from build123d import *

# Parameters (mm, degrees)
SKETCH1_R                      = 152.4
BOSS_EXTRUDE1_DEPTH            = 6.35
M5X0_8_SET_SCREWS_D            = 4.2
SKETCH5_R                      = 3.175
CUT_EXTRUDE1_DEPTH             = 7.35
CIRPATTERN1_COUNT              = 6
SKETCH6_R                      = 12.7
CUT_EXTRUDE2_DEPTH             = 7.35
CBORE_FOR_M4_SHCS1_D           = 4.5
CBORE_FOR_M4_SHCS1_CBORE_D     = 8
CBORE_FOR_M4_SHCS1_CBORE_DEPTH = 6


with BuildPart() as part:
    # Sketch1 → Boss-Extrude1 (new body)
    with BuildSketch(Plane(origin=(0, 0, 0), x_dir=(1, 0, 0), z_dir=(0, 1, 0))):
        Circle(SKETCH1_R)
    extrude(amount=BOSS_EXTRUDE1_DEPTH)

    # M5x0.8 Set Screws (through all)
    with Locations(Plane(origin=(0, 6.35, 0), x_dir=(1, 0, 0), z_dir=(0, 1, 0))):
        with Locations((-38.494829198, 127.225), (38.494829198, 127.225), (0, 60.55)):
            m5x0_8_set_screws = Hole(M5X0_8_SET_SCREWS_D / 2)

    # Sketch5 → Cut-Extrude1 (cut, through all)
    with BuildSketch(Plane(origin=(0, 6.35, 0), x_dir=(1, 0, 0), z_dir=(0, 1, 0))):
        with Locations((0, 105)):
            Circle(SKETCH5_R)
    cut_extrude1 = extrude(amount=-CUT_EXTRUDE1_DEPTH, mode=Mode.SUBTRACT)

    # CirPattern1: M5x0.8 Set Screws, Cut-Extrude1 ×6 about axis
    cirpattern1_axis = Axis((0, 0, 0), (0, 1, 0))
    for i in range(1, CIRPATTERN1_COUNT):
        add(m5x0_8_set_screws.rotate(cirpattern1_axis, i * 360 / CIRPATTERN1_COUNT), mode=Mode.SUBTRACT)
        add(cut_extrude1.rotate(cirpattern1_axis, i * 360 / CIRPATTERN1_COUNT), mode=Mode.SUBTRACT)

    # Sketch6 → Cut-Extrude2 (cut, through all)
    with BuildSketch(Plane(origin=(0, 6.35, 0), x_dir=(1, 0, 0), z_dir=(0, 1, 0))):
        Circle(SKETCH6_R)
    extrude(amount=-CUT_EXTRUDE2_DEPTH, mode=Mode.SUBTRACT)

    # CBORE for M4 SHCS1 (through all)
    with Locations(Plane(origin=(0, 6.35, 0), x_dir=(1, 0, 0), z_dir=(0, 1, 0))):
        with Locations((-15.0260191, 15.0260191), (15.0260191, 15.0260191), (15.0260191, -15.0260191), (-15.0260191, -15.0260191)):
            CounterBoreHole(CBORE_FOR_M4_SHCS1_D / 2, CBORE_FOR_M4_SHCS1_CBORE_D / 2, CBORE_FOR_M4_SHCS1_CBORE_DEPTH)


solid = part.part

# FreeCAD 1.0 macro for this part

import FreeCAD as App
import Part
import Sketcher

V = App.Vector
Q = App.Units.Quantity

doc = App.newDocument("Part")
body = doc.addObject("PartDesign::Body", "Body")

sketch1 = body.newObject("Sketcher::SketchObject", "Sketch")
sketch1.AttachmentSupport = (doc.getObject("XZ_Plane"), [""])
sketch1.MapMode = "FlatFace"
sketch1.addGeometry(Part.Circle(V(0, 0, 0), V(0, 0, 1), 152), False)
sketch1.addConstraint(Sketcher.Constraint("Coincident", 0, 3, -1, 1))
sketch1.addConstraint(Sketcher.Constraint("Diameter", 0, Q("12 in")))
pad1 = body.newObject("PartDesign::Pad", "Pad")
pad1.Profile = sketch1
pad1.Length = Q("0.25 in")
pad1.Reversed = True

sketch2 = body.newObject("Sketcher::SketchObject", "Sketch001")
sketch2.AttachmentSupport = (doc.getObject("XZ_Plane"), [""])
sketch2.MapMode = "FlatFace"
sketch2.AttachmentOffset = App.Placement(V(0, 0, -0.25 * 25.4), App.Rotation())
sketch2.addGeometry(Part.Circle(V(-38.5, -127.2, 0), V(0, 0, 1), 2.1), False)
sketch2.addGeometry(Part.Circle(V(38.5, -127.2, 0), V(0, 0, 1), 2.1), False)
sketch2.addGeometry(Part.Circle(V(0, -60.5, 0), V(0, 0, 1), 2.1), False)
sketch2.addConstraint(Sketcher.Constraint("Equal", 0, 1))
sketch2.addConstraint(Sketcher.Constraint("Equal", 1, 2))
sketch2.addConstraint(Sketcher.Constraint("Symmetric", 0, 3, 1, 3, -2))
sketch2.addConstraint(Sketcher.Constraint("PointOnObject", 2, 3, -2))
sketch2.addConstraint(Sketcher.Constraint("Diameter", 0, 4.2))
sketch2.addConstraint(Sketcher.Constraint("DistanceY", 0, 3, 2, 3, Q("2.625 in")))
sketch2.addConstraint(Sketcher.Constraint("DistanceY", 0, 3, -1, 1, 127.225))
sketch2.addConstraint(Sketcher.Constraint("DistanceX", 0, 3, -1, 1, 38.494829))
doc.recompute()
hole = body.newObject("PartDesign::Hole", "Hole")
hole.Profile = sketch2
hole.ThreadType = "None"
hole.Diameter = 4.2
hole.DepthType = "ThroughAll"
hole.Reversed = True

sketch3 = body.newObject("Sketcher::SketchObject", "Sketch002")
sketch3.AttachmentSupport = (doc.getObject("XZ_Plane"), [""])
sketch3.MapMode = "FlatFace"
sketch3.AttachmentOffset = App.Placement(V(0, 0, -0.25 * 25.4), App.Rotation())
sketch3.addGeometry(Part.Circle(V(0, -105, 0), V(0, 0, 1), 3.2), False)
sketch3.addConstraint(Sketcher.Constraint("PointOnObject", 0, 3, -2))
sketch3.addConstraint(Sketcher.Constraint("Diameter", 0, Q("0.25 in")))
sketch3.addConstraint(Sketcher.Constraint("DistanceY", 0, 3, -1, 1, 105.0))
pocket1 = body.newObject("PartDesign::Pocket", "Pocket")
pocket1.Profile = sketch3
pocket1.Type = "ThroughAll"
pocket1.Reversed = True
doc.recompute()

polarpattern = body.newObject("PartDesign::PolarPattern", "PolarPattern")
polarpattern.Originals = [hole, pocket1]
polarpattern.Axis = (doc.getObject("Y_Axis"), [""])
polarpattern.Angle = 360
polarpattern.Occurrences = 6
body.Tip = polarpattern

sketch4 = body.newObject("Sketcher::SketchObject", "Sketch003")
sketch4.AttachmentSupport = (doc.getObject("XZ_Plane"), [""])
sketch4.MapMode = "FlatFace"
sketch4.AttachmentOffset = App.Placement(V(0, 0, -0.25 * 25.4), App.Rotation())
sketch4.addGeometry(Part.Circle(V(0, 0, 0), V(0, 0, 1), 13), False)
sketch4.addConstraint(Sketcher.Constraint("Coincident", 0, 3, -1, 1))
sketch4.addConstraint(Sketcher.Constraint("Diameter", 0, Q("1 in")))
pocket2 = body.newObject("PartDesign::Pocket", "Pocket001")
pocket2.Profile = sketch4
pocket2.Type = "ThroughAll"
pocket2.Reversed = True

sketch5 = body.newObject("Sketcher::SketchObject", "Sketch004")
sketch5.AttachmentSupport = (doc.getObject("XZ_Plane"), [""])
sketch5.MapMode = "FlatFace"
sketch5.AttachmentOffset = App.Placement(V(0, 0, -0.25 * 25.4), App.Rotation())
sketch5.addGeometry(Part.Circle(V(-15, -15, 0), V(0, 0, 1), 2.2), False)
sketch5.addGeometry(Part.Circle(V(15, -15, 0), V(0, 0, 1), 2.2), False)
sketch5.addGeometry(Part.Circle(V(15, 15, 0), V(0, 0, 1), 2.2), False)
sketch5.addGeometry(Part.Circle(V(-15, 15, 0), V(0, 0, 1), 2.2), False)
sketch5.addConstraint(Sketcher.Constraint("Equal", 0, 1))
sketch5.addConstraint(Sketcher.Constraint("Equal", 1, 2))
sketch5.addConstraint(Sketcher.Constraint("Equal", 2, 3))
sketch5.addConstraint(Sketcher.Constraint("Symmetric", 0, 3, 2, 3, -1, 1))
sketch5.addConstraint(Sketcher.Constraint("Symmetric", 1, 3, 3, 3, -1, 1))
sketch5.addConstraint(Sketcher.Constraint("Symmetric", 0, 3, 1, 3, -2))
sketch5.addConstraint(Sketcher.Constraint("Diameter", 0, 4.5))
sketch5.addConstraint(Sketcher.Constraint("DistanceX", 0, 3, -1, 1, 15.026019))
sketch5.addConstraint(Sketcher.Constraint("DistanceY", 0, 3, -1, 1, 15.026019))
doc.recompute()
hole2 = body.newObject("PartDesign::Hole", "Hole001")
hole2.Profile = sketch5
hole2.ThreadType = "None"
hole2.Diameter = 4.5
hole2.DepthType = "ThroughAll"
hole2.HoleCutType = "Counterbore"
hole2.HoleCutDiameter = 8
hole2.HoleCutDepth = 6
hole2.Reversed = True

doc.recompute()
